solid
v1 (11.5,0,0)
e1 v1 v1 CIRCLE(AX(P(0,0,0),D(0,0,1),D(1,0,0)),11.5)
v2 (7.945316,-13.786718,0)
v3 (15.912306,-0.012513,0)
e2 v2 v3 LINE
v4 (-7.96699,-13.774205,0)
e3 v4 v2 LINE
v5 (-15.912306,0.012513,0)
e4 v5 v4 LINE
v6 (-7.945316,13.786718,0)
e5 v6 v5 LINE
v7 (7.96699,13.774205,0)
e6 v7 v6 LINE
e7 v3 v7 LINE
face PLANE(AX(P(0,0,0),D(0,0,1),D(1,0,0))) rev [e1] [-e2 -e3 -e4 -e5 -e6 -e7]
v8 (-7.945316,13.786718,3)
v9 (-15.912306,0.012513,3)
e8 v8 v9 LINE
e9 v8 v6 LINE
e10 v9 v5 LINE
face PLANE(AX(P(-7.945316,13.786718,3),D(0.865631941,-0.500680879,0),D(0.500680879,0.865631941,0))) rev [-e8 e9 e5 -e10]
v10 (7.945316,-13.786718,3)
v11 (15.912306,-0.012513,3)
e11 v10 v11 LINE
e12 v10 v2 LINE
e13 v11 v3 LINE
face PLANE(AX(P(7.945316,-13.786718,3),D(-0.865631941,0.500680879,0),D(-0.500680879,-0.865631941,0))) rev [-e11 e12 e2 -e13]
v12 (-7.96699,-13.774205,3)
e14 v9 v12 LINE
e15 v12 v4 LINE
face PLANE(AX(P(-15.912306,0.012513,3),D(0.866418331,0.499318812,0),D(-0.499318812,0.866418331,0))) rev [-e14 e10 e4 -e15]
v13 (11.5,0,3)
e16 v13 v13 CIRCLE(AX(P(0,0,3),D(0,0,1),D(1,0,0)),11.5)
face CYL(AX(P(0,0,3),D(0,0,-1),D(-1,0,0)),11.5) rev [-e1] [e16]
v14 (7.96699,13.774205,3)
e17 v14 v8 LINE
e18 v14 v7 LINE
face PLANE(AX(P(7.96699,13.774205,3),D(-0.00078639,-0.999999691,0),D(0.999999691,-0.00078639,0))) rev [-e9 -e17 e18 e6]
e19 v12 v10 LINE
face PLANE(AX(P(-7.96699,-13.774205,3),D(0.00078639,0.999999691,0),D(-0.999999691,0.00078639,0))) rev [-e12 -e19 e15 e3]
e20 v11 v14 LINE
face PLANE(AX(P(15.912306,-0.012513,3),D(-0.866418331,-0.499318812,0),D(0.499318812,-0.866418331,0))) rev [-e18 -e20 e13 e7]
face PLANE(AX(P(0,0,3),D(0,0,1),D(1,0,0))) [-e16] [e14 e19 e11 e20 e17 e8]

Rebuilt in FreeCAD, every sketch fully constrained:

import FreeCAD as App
import Part
import Sketcher

V = App.Vector
Q = App.Units.Quantity

doc = App.newDocument("Part")
params = doc.addObject("Spreadsheet::Sheet", "Params")
for row, (alias, value) in enumerate([
    ("sketch1_diameter", "23 mm"),
    ("pad1_length", "3 mm"),
], start=1):
    params.set(f"A{row}", alias)
    params.set(f"B{row}", "=" + value)
    params.setAlias(f"B{row}", alias)

body = doc.addObject("PartDesign::Body", "Body")

# Sketch on XY plane
sketch1 = doc.addObject("Sketcher::SketchObject", "Sketch")
body.addObject(sketch1)
sketch1.AttachmentSupport = (doc.XY_Plane, [""])
sketch1.MapMode = "FlatFace"
sketch1.addGeometry(Part.LineSegment(V(7.96699, 13.774205, 0), V(-7.945316, 13.786718, 0)), False)
sketch1.addGeometry(Part.LineSegment(V(-7.945316, 13.786718, 0), V(-15.912306, 0.012513, 0)), False)
sketch1.addGeometry(Part.LineSegment(V(-15.912306, 0.012513, 0), V(-7.96699, -13.774205, 0)), False)
sketch1.addGeometry(Part.LineSegment(V(-7.96699, -13.774205, 0), V(7.945316, -13.786718, 0)), False)
sketch1.addGeometry(Part.LineSegment(V(7.945316, -13.786718, 0), V(15.912306, -0.012513, 0)), False)
sketch1.addGeometry(Part.LineSegment(V(15.912306, -0.012513, 0), V(7.96699, 13.774205, 0)), False)
sketch1.addGeometry(Part.Circle(V(0, 0, 0), V(0, 0, 1), 11.5), False)
sketch1.addConstraint(Sketcher.Constraint("Coincident", 0, 2, 1, 1))
sketch1.addConstraint(Sketcher.Constraint("Coincident", 1, 2, 2, 1))
sketch1.addConstraint(Sketcher.Constraint("Coincident", 2, 2, 3, 1))
sketch1.addConstraint(Sketcher.Constraint("Coincident", 3, 2, 4, 1))
sketch1.addConstraint(Sketcher.Constraint("Coincident", 4, 2, 5, 1))
sketch1.addConstraint(Sketcher.Constraint("Coincident", 5, 2, 0, 1))
sketch1.addConstraint(Sketcher.Constraint("Coincident", 6, 3, -1, 1))
sketch1.addConstraint(Sketcher.Constraint("Symmetric", 0, 2, 3, 2, -1, 1))
sketch1.addConstraint(Sketcher.Constraint("Symmetric", 1, 2, 4, 2, -1, 1))
sketch1.addConstraint(Sketcher.Constraint("Symmetric", 2, 2, 5, 2, -1, 1))
sketch1.addConstraint(Sketcher.Constraint("Equal", 0, 1))
sketch1.addConstraint(Sketcher.Constraint("Equal", 1, 2))
sketch1.addConstraint(Sketcher.Constraint("Diameter", 6, Q("23 mm")))
sketch1.addConstraint(Sketcher.Constraint("Distance", 0, Q("15.912311 mm")))
sketch1.addConstraint(Sketcher.Constraint("DistanceY", -1, 1, 0, 2, Q("13.786718 mm")))
sketch1.addConstraint(Sketcher.Constraint("DistanceX", 2, 2, -1, 1, Q("7.96699 mm")))
sketch1.addConstraint(Sketcher.Constraint("DistanceX", 1, 2, 0, 2, Q("7.96699 mm")))
sketch1.setExpression("Constraints[12]", "Params.sketch1_diameter")
pad1 = doc.addObject("PartDesign::Pad", "Pad")
body.addObject(pad1)
pad1.Profile = sketch1
pad1.setExpression("Length", "Params.pad1_length")

doc.recompute()
